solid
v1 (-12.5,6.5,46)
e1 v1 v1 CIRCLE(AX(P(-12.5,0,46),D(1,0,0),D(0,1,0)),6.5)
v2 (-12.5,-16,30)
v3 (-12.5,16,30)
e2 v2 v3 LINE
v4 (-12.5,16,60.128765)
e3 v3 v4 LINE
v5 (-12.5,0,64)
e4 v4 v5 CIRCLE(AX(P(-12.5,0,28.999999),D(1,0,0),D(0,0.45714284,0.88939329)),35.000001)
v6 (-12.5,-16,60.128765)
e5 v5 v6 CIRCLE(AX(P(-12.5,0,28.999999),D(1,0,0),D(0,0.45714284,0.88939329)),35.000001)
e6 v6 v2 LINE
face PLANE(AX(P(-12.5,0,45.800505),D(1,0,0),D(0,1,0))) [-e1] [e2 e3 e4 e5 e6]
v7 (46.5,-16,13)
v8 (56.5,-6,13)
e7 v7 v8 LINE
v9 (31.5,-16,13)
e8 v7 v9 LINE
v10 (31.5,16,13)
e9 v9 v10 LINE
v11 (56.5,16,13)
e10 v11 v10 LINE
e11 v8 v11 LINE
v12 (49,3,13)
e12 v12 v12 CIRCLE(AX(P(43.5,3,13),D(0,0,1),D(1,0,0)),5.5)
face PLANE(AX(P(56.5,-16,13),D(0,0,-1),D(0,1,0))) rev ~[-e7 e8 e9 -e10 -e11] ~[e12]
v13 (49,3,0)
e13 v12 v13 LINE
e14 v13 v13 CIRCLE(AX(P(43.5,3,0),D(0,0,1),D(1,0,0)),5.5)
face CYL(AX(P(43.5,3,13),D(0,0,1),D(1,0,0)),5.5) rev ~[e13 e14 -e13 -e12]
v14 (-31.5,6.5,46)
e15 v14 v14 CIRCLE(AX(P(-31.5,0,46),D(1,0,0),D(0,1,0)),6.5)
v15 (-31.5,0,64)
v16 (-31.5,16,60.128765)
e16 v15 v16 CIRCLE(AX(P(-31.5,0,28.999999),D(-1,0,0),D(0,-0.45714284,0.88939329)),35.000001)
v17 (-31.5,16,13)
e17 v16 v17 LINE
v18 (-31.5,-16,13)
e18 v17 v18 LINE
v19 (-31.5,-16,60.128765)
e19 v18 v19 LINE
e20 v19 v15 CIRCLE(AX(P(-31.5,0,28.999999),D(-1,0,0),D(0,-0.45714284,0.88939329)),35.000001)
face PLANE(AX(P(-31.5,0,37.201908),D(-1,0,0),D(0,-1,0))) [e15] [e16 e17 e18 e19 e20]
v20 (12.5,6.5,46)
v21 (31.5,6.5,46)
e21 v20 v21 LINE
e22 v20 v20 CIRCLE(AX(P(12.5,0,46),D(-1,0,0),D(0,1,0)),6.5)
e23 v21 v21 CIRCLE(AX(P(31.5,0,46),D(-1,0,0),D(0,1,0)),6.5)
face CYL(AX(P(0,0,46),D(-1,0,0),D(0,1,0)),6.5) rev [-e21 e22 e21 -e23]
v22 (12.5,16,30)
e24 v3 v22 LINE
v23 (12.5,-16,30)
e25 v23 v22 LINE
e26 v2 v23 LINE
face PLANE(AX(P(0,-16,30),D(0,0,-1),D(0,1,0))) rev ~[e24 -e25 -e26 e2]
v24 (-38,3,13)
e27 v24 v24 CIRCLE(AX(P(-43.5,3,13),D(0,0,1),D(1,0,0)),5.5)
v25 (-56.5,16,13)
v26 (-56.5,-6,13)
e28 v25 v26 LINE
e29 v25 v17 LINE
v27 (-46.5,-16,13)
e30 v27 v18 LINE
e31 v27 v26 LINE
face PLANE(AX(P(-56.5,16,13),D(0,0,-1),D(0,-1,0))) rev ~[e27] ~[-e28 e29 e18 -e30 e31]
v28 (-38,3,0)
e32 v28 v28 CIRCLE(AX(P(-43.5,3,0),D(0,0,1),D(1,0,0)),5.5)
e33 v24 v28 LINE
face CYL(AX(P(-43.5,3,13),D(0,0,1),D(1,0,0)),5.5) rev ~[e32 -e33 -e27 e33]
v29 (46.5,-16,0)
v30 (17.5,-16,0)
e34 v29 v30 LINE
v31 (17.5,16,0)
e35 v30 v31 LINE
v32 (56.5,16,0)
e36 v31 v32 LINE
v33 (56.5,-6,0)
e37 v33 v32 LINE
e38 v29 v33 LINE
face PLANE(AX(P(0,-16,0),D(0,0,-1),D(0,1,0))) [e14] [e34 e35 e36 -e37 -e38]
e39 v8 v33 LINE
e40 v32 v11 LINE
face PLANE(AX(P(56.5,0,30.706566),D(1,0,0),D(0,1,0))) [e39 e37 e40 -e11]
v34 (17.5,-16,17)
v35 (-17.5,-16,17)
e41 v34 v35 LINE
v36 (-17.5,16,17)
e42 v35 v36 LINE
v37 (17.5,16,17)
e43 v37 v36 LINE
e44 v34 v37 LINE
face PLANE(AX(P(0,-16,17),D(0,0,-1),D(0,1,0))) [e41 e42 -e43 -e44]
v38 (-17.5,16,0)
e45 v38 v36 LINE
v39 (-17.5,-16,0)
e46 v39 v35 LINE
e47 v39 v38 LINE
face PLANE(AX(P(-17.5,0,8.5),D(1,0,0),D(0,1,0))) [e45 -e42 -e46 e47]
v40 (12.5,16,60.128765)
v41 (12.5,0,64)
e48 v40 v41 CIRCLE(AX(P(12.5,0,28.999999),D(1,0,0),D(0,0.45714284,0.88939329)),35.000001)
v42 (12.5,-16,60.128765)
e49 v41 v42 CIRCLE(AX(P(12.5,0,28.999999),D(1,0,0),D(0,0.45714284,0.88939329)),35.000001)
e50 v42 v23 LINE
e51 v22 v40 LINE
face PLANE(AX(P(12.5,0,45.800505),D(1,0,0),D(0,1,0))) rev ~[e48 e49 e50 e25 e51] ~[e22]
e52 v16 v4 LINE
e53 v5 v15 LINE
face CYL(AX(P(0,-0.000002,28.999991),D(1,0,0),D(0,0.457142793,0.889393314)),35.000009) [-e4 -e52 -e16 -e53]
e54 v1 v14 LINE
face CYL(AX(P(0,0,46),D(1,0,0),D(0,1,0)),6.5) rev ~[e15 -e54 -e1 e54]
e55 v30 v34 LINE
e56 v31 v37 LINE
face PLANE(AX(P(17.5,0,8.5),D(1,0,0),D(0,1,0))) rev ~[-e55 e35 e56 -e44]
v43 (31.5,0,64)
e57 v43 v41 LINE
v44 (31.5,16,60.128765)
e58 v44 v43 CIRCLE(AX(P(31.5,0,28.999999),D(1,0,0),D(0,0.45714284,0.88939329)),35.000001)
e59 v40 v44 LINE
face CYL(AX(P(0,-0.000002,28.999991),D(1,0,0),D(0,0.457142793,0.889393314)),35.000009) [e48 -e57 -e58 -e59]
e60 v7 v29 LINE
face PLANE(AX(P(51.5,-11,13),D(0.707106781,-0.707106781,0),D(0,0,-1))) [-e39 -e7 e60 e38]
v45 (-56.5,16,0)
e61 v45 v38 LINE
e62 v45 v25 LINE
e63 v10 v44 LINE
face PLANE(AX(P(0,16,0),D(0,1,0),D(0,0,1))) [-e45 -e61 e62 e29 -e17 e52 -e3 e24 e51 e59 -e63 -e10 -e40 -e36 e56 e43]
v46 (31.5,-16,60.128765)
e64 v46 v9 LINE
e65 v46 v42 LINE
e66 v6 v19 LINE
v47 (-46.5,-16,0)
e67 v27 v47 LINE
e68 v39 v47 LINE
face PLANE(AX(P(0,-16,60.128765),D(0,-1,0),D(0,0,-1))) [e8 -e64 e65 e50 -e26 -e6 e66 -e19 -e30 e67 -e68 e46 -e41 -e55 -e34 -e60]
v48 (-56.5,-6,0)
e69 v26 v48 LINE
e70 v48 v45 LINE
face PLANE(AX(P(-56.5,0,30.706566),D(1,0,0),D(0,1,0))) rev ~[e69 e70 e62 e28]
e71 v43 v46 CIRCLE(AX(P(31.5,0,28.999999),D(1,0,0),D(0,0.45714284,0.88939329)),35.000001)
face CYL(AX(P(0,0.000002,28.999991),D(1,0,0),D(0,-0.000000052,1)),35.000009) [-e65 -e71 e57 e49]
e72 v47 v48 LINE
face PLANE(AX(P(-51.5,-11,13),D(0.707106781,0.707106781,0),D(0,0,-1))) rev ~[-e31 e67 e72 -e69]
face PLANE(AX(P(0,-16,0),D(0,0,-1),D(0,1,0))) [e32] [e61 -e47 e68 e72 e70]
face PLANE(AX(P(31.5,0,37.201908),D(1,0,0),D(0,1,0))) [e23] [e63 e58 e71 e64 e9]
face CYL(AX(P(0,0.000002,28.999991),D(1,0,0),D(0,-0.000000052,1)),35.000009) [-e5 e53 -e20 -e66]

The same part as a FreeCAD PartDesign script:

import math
import FreeCAD as App
import Part
import Sketcher
Q = App.Units.Quantity


def edges_at(feature, points):
    """Names of the edges that pass closest to the given points."""
    edges = feature.Shape.Edges
    near = lambda p: min(range(len(edges)), key=lambda i: edges[i].distToShape(Part.Vertex(*p))[0])
    return sorted({f"Edge{near(p) + 1}" for p in points})

doc = App.newDocument("Part")
body = doc.addObject("PartDesign::Body", "Body")

# Sketch on YZ plane
sketch1 = body.newObject("Sketcher::SketchObject", "Sketch")
sketch1.AttachmentSupport = (doc.getObject("YZ_Plane"), [""])
sketch1.MapMode = "FlatFace"
sketch1.addGeometry(Part.LineSegment(App.Vector(-16, 0, 0), App.Vector(16, 0, 0)), False)
sketch1.addGeometry(Part.LineSegment(App.Vector(16, 0, 0), App.Vector(16, 60, 0)), False)
sketch1.addGeometry(Part.ArcOfCircle(Part.Circle(App.Vector(0, 29, 0), App.Vector(0, 0, 1), 35), math.radians(63), math.radians(90)), False)
sketch1.addGeometry(Part.ArcOfCircle(Part.Circle(App.Vector(0, 29, 0), App.Vector(0, 0, 1), 35), math.radians(90), math.radians(117)), False)
sketch1.addGeometry(Part.LineSegment(App.Vector(-16, 60, 0), App.Vector(-16, 0, 0)), False)
sketch1.addConstraint(Sketcher.Constraint("Coincident", 0, 2, 1, 1))
sketch1.addConstraint(Sketcher.Constraint("Coincident", 1, 2, 2, 1))
sketch1.addConstraint(Sketcher.Constraint("Tangent", 2, 2, 3, 1))
sketch1.addConstraint(Sketcher.Constraint("Coincident", 3, 2, 4, 1))
sketch1.addConstraint(Sketcher.Constraint("Coincident", 4, 2, 0, 1))
sketch1.addConstraint(Sketcher.Constraint("Horizontal", 0))
sketch1.addConstraint(Sketcher.Constraint("Vertical", 1))
sketch1.addConstraint(Sketcher.Constraint("Vertical", 4))
sketch1.addConstraint(Sketcher.Constraint("Equal", 2, 3))
sketch1.addConstraint(Sketcher.Constraint("Symmetric", 0, 2, 4, 2, -1, 1))
sketch1.addConstraint(Sketcher.Constraint("PointOnObject", 2, 3, -2))
sketch1.addConstraint(Sketcher.Constraint("PointOnObject", 2, 2, -2))
sketch1.addConstraint(Sketcher.Constraint("DistanceX", 0, 1, 0, 2, Q("32 mm")))
sketch1.addConstraint(Sketcher.Constraint("DistanceY", -1, 1, 2, 2, Q("64 mm")))
sketch1.addConstraint(Sketcher.Constraint("Radius", 2, Q("35.000009 mm")))
pad1 = body.newObject("PartDesign::Pad", "Pad")
pad1.Profile = sketch1
pad1.Length = 113
pad1.Midplane = True

# Sketch on YZ plane
sketch2 = body.newObject("Sketcher::SketchObject", "Sketch001")
sketch2.AttachmentSupport = (doc.getObject("YZ_Plane"), [""])
sketch2.MapMode = "FlatFace"
sketch2.AttachmentOffset = App.Placement(App.Vector(0, 0, 56.5), App.Rotation())
sketch2.addGeometry(Part.LineSegment(App.Vector(16, 13, 0), App.Vector(16, 60, 0)), False)
sketch2.addGeometry(Part.ArcOfCircle(Part.Circle(App.Vector(0, 29, 0), App.Vector(0, 0, 1), 35), math.radians(63), math.radians(117)), False)
sketch2.addGeometry(Part.LineSegment(App.Vector(-16, 60, 0), App.Vector(-16, 13, 0)), False)
sketch2.addGeometry(Part.LineSegment(App.Vector(-16, 13, 0), App.Vector(16, 13, 0)), False)
sketch2.addConstraint(Sketcher.Constraint("Coincident", 0, 2, 1, 1))
sketch2.addConstraint(Sketcher.Constraint("Coincident", 1, 2, 2, 1))
sketch2.addConstraint(Sketcher.Constraint("Coincident", 2, 2, 3, 1))
sketch2.addConstraint(Sketcher.Constraint("Coincident", 3, 2, 0, 1))
sketch2.addConstraint(Sketcher.Constraint("Vertical", 0))
sketch2.addConstraint(Sketcher.Constraint("Vertical", 2))
sketch2.addConstraint(Sketcher.Constraint("Horizontal", 3))
sketch2.addConstraint(Sketcher.Constraint("Symmetric", 0, 2, 1, 2, -2))
sketch2.addConstraint(Sketcher.Constraint("Radius", 1, Q("35.000001 mm")))
sketch2.addConstraint(Sketcher.Constraint("DistanceX", 3, 1, 3, 2, Q("32 mm")))
sketch2.addConstraint(Sketcher.Constraint("DistanceY", -1, 1, 1, 3, Q("28.999999 mm")))
sketch2.addConstraint(Sketcher.Constraint("DistanceY", -1, 1, 2, 2, Q("13 mm")))
pocket1 = body.newObject("PartDesign::Pocket", "Pocket")
pocket1.Profile = sketch2
pocket1.Length = 25

# Sketch on YZ plane
sketch3 = body.newObject("Sketcher::SketchObject", "Sketch002")
sketch3.AttachmentSupport = (doc.getObject("YZ_Plane"), [""])
sketch3.MapMode = "FlatFace"
sketch3.AttachmentOffset = App.Placement(App.Vector(0, 0, -56.5), App.Rotation())
sketch3.addGeometry(Part.LineSegment(App.Vector(-16, 13, 0), App.Vector(-16, 60, 0)), False)
sketch3.addGeometry(Part.ArcOfCircle(Part.Circle(App.Vector(0, 29, 0), App.Vector(0, 0, 1), 35), math.radians(63), math.radians(117)), False)
sketch3.addGeometry(Part.LineSegment(App.Vector(16, 60, 0), App.Vector(16, 13, 0)), False)
sketch3.addGeometry(Part.LineSegment(App.Vector(16, 13, 0), App.Vector(-16, 13, 0)), False)
sketch3.addConstraint(Sketcher.Constraint("Coincident", 0, 2, 1, 2))
sketch3.addConstraint(Sketcher.Constraint("Coincident", 1, 1, 2, 1))
sketch3.addConstraint(Sketcher.Constraint("Coincident", 2, 2, 3, 1))
sketch3.addConstraint(Sketcher.Constraint("Coincident", 3, 2, 0, 1))
sketch3.addConstraint(Sketcher.Constraint("Vertical", 0))
sketch3.addConstraint(Sketcher.Constraint("Vertical", 2))
sketch3.addConstraint(Sketcher.Constraint("Horizontal", 3))
sketch3.addConstraint(Sketcher.Constraint("Symmetric", 0, 2, 1, 1, -2))
sketch3.addConstraint(Sketcher.Constraint("Radius", 1, Q("35.000001 mm")))
sketch3.addConstraint(Sketcher.Constraint("DistanceX", 3, 2, 3, 1, Q("32 mm")))
sketch3.addConstraint(Sketcher.Constraint("DistanceY", -1, 1, 1, 3, Q("28.999999 mm")))
sketch3.addConstraint(Sketcher.Constraint("DistanceY", -1, 1, 2, 2, Q("13 mm")))
pocket2 = body.newObject("PartDesign::Pocket", "Pocket001")
pocket2.Profile = sketch3
pocket2.Length = 25
pocket2.Reversed = True

# Sketch on YZ plane
sketch4 = body.newObject("Sketcher::SketchObject", "Sketch003")
sketch4.AttachmentSupport = (doc.getObject("YZ_Plane"), [""])
sketch4.MapMode = "FlatFace"
sketch4.addGeometry(Part.LineSegment(App.Vector(-16, 60, 0), App.Vector(-16, 30, 0)), False)
sketch4.addGeometry(Part.LineSegment(App.Vector(-16, 30, 0), App.Vector(16, 30, 0)), False)
sketch4.addGeometry(Part.LineSegment(App.Vector(16, 30, 0), App.Vector(16, 60, 0)), False)
sketch4.addGeometry(Part.ArcOfCircle(Part.Circle(App.Vector(0, 29, 0), App.Vector(0, 0, 1), 35), math.radians(63), math.radians(117)), False)
sketch4.addConstraint(Sketcher.Constraint("Coincident", 0, 2, 1, 1))
sketch4.addConstraint(Sketcher.Constraint("Coincident", 1, 2, 2, 1))
sketch4.addConstraint(Sketcher.Constraint("Coincident", 2, 2, 3, 1))
sketch4.addConstraint(Sketcher.Constraint("Coincident", 3, 2, 0, 1))
sketch4.addConstraint(Sketcher.Constraint("Vertical", 0))
sketch4.addConstraint(Sketcher.Constraint("Horizontal", 1))
sketch4.addConstraint(Sketcher.Constraint("Vertical", 2))
sketch4.addConstraint(Sketcher.Constraint("Symmetric", 2, 2, 3, 2, -2))
sketch4.addConstraint(Sketcher.Constraint("Radius", 3, Q("35.000001 mm")))
sketch4.addConstraint(Sketcher.Constraint("DistanceX", 1, 1, 1, 2, Q("32 mm")))
sketch4.addConstraint(Sketcher.Constraint("DistanceY", -1, 1, 3, 3, Q("28.999999 mm")))
sketch4.addConstraint(Sketcher.Constraint("DistanceY", -1, 1, 0, 2, Q("30 mm")))
pocket3 = body.newObject("PartDesign::Pocket", "Pocket002")
pocket3.Profile = sketch4
pocket3.Length = 25
pocket3.Midplane = True

# Sketch on YZ plane
sketch5 = body.newObject("Sketcher::SketchObject", "Sketch004")
sketch5.AttachmentSupport = (doc.getObject("YZ_Plane"), [""])
sketch5.MapMode = "FlatFace"
sketch5.addGeometry(Part.LineSegment(App.Vector(-16, 17, 0), App.Vector(-16, 0, 0)), False)
sketch5.addGeometry(Part.LineSegment(App.Vector(-16, 0, 0), App.Vector(16, 0, 0)), False)
sketch5.addGeometry(Part.LineSegment(App.Vector(16, 0, 0), App.Vector(16, 17, 0)), False)
sketch5.addGeometry(Part.LineSegment(App.Vector(16, 17, 0), App.Vector(-16, 17, 0)), False)
sketch5.addConstraint(Sketcher.Constraint("Coincident", 0, 2, 1, 1))
sketch5.addConstraint(Sketcher.Constraint("Coincident", 1, 2, 2, 1))
sketch5.addConstraint(Sketcher.Constraint("Coincident", 2, 2, 3, 1))
sketch5.addConstraint(Sketcher.Constraint("Coincident", 3, 2, 0, 1))
sketch5.addConstraint(Sketcher.Constraint("Vertical", 0))
sketch5.addConstraint(Sketcher.Constraint("Horizontal", 1))
sketch5.addConstraint(Sketcher.Constraint("Vertical", 2))
sketch5.addConstraint(Sketcher.Constraint("Horizontal", 3))
sketch5.addConstraint(Sketcher.Constraint("Symmetric", 0, 2, 1, 2, -1, 1))
sketch5.addConstraint(Sketcher.Constraint("DistanceX", 1, 1, 1, 2, Q("32 mm")))
sketch5.addConstraint(Sketcher.Constraint("DistanceY", 0, 2, 0, 1, Q("17 mm")))
pocket4 = body.newObject("PartDesign::Pocket", "Pocket003")
pocket4.Profile = sketch5
pocket4.Length = 35
pocket4.Midplane = True

# Sketch on YZ plane
sketch6 = body.newObject("Sketcher::SketchObject", "Sketch005")
sketch6.AttachmentSupport = (doc.getObject("YZ_Plane"), [""])
sketch6.MapMode = "FlatFace"
sketch6.addGeometry(Part.Circle(App.Vector(0, 46, 0), App.Vector(0, 0, 1), 6), False)
sketch6.addConstraint(Sketcher.Constraint("PointOnObject", 0, 3, -2))
sketch6.addConstraint(Sketcher.Constraint("Diameter", 0, Q("13 mm")))
sketch6.addConstraint(Sketcher.Constraint("DistanceY", -1, 1, 0, 3, Q("46 mm")))
pocket5 = body.newObject("PartDesign::Pocket", "Pocket004")
pocket5.Profile = sketch6
pocket5.Type = "ThroughAll"
pocket5.Midplane = True

# Sketch on XY plane
sketch7 = body.newObject("Sketcher::SketchObject", "Sketch006")
sketch7.AttachmentSupport = (doc.getObject("XY_Plane"), [""])
sketch7.MapMode = "FlatFace"
sketch7.AttachmentOffset = App.Placement(App.Vector(0, 0, 13), App.Rotation())
sketch7.addGeometry(Part.Circle(App.Vector(-44, 3, 0), App.Vector(0, 0, 1), 6), False)
sketch7.addGeometry(Part.Circle(App.Vector(44, 3, 0), App.Vector(0, 0, 1), 6), False)
sketch7.addConstraint(Sketcher.Constraint("Equal", 0, 1))
sketch7.addConstraint(Sketcher.Constraint("Symmetric", 0, 3, 1, 3, -2))
sketch7.addConstraint(Sketcher.Constraint("Diameter", 0, Q("11 mm")))
sketch7.addConstraint(Sketcher.Constraint("DistanceY", -1, 1, 0, 3, Q("3 mm")))
sketch7.addConstraint(Sketcher.Constraint("DistanceX", 0, 3, 1, 3, Q("87 mm")))
pocket6 = body.newObject("PartDesign::Pocket", "Pocket005")
pocket6.Profile = sketch7
pocket6.Type = "ThroughAll"
doc.recompute()

chamfer = body.newObject("PartDesign::Chamfer", "Chamfer")
chamfer.Base = (pocket6, edges_at(pocket6, [(56.5, -16, 6.5), (-56.5, -16, 6.5)]))
chamfer.ChamferType = "Two distances"
chamfer.Size = 10
chamfer.Size2 = 10

doc.recompute()
